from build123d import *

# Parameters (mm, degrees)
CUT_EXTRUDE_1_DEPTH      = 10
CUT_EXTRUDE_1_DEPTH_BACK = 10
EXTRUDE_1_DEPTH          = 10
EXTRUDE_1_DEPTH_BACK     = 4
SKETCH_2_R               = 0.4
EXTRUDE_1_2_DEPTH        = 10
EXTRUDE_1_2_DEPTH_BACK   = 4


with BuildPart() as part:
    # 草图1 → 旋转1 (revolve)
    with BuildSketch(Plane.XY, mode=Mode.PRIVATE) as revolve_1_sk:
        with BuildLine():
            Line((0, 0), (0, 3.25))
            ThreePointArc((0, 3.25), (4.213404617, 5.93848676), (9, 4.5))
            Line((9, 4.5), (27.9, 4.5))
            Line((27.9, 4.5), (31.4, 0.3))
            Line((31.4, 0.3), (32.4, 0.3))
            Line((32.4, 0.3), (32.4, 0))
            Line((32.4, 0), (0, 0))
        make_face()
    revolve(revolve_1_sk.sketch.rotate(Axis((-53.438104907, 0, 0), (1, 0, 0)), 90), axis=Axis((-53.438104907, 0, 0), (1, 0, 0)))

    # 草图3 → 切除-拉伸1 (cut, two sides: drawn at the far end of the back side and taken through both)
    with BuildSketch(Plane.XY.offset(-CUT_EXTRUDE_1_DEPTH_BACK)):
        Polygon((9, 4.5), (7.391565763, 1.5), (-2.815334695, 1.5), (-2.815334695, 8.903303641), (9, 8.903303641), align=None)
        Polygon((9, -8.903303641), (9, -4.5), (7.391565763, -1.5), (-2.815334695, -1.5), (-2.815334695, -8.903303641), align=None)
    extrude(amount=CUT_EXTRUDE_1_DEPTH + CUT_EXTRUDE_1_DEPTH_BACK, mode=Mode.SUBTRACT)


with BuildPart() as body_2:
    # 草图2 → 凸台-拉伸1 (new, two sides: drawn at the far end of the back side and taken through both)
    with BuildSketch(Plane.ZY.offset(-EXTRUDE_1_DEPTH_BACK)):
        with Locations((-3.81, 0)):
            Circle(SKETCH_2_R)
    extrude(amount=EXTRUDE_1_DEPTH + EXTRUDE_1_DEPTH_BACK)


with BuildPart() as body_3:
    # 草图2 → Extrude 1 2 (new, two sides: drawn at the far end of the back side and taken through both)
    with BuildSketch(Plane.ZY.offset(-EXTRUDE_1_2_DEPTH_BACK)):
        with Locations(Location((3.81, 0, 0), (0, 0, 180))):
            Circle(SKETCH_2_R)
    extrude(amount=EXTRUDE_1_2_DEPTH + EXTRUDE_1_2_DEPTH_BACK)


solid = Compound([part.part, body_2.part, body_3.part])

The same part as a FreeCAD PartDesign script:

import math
import FreeCAD as App
import Part
import Sketcher
from FreeCAD import Vector
Q = App.Units.Quantity

doc = App.newDocument("Part")
body = doc.addObject("PartDesign::Body", "Body")

# Sketch on XY plane
sketch1 = body.newObject("Sketcher::SketchObject", "Sketch")
sketch1.AttachmentSupport = (doc.getObject("XY_Plane"), [""])
sketch1.MapMode = "FlatFace"
sketch1.addGeometry(Part.LineSegment(Vector(0, 3.25, 0), Vector(0, 0, 0)), False)
sketch1.addGeometry(Part.LineSegment(Vector(0, 0, 0), Vector(32.4, 0, 0)), False)
sketch1.addGeometry(Part.LineSegment(Vector(32.4, 0, 0), Vector(32.4, 0.3, 0)), False)
sketch1.addGeometry(Part.LineSegment(Vector(32.4, 0.3, 0), Vector(31.4, 0.3, 0)), False)
sketch1.addGeometry(Part.LineSegment(Vector(31.4, 0.3, 0), Vector(27.9, 4.5, 0)), False)
sketch1.addGeometry(Part.LineSegment(Vector(27.9, 4.5, 0), Vector(9, 4.5, 0)), False)
sketch1.addGeometry(Part.ArcOfCircle(Part.Circle(Vector(5.04, 0, 0), Vector(0, 0, 1), 6), math.radians(49), math.radians(147)), False)
sketch1.addConstraint(Sketcher.Constraint("Coincident", 0, 2, 1, 1))
sketch1.addConstraint(Sketcher.Constraint("Coincident", 1, 2, 2, 1))
sketch1.addConstraint(Sketcher.Constraint("Coincident", 2, 2, 3, 1))
sketch1.addConstraint(Sketcher.Constraint("Coincident", 3, 2, 4, 1))
sketch1.addConstraint(Sketcher.Constraint("Coincident", 4, 2, 5, 1))
sketch1.addConstraint(Sketcher.Constraint("Coincident", 5, 2, 6, 1))
sketch1.addConstraint(Sketcher.Constraint("Coincident", 6, 2, 0, 1))
sketch1.addConstraint(Sketcher.Constraint("Vertical", 0))
sketch1.addConstraint(Sketcher.Constraint("Horizontal", 1))
sketch1.addConstraint(Sketcher.Constraint("Vertical", 2))
sketch1.addConstraint(Sketcher.Constraint("Horizontal", 3))
sketch1.addConstraint(Sketcher.Constraint("Horizontal", 5))
sketch1.addConstraint(Sketcher.Constraint("Coincident", 0, 2, -1, 1))
sketch1.addConstraint(Sketcher.Constraint("PointOnObject", 6, 3, -1))
sketch1.addConstraint(Sketcher.Constraint("DistanceX", 3, 2, 3, 1, Q("1 mm")))
sketch1.addConstraint(Sketcher.Constraint("DistanceX", 1, 1, 1, 2, Q("32.4 mm")))
sketch1.addConstraint(Sketcher.Constraint("DistanceX", 5, 2, 5, 1, Q("18.9 mm")))
sketch1.addConstraint(Sketcher.Constraint("DistanceY", 2, 1, 2, 2, Q("0.3 mm")))
sketch1.addConstraint(Sketcher.Constraint("DistanceX", -1, 1, 5, 2, Q("9 mm")))
sketch1.addConstraint(Sketcher.Constraint("DistanceY", 0, 2, 0, 1, Q("3.25 mm")))
sketch1.addConstraint(Sketcher.Constraint("DistanceY", -1, 1, 4, 2, Q("4.5 mm")))
revolution = body.newObject("PartDesign::Revolution", "Revolution")
revolution.Profile = sketch1
revolution.ReferenceAxis = (sketch1, ["H_Axis"])
revolution.Angle = 360

# Sketch on XY plane
sketch2 = body.newObject("Sketcher::SketchObject", "Sketch001")
sketch2.AttachmentSupport = (doc.getObject("XY_Plane"), [""])
sketch2.MapMode = "FlatFace"
sketch2.addGeometry(Part.LineSegment(Vector(7.4, 1.5, 0), Vector(9, 4.5, 0)), False)
sketch2.addGeometry(Part.LineSegment(Vector(9, 4.5, 0), Vector(9, 8.9, 0)), False)
sketch2.addGeometry(Part.LineSegment(Vector(9, 8.9, 0), Vector(-2.8, 8.9, 0)), False)
sketch2.addGeometry(Part.LineSegment(Vector(-2.8, 8.9, 0), Vector(-2.8, 1.5, 0)), False)
sketch2.addGeometry(Part.LineSegment(Vector(-2.8, 1.5, 0), Vector(7.4, 1.5, 0)), False)
sketch2.addGeometry(Part.LineSegment(Vector(9, -8.9, 0), Vector(9, -4.5, 0)), False)
sketch2.addGeometry(Part.LineSegment(Vector(9, -4.5, 0), Vector(7.4, -1.5, 0)), False)
sketch2.addGeometry(Part.LineSegment(Vector(7.4, -1.5, 0), Vector(-2.8, -1.5, 0)), False)
sketch2.addGeometry(Part.LineSegment(Vector(-2.8, -1.5, 0), Vector(-2.8, -8.9, 0)), False)
sketch2.addGeometry(Part.LineSegment(Vector(-2.8, -8.9, 0), Vector(9, -8.9, 0)), False)
sketch2.addConstraint(Sketcher.Constraint("Coincident", 0, 2, 1, 1))
sketch2.addConstraint(Sketcher.Constraint("Coincident", 1, 2, 2, 1))
sketch2.addConstraint(Sketcher.Constraint("Coincident", 2, 2, 3, 1))
sketch2.addConstraint(Sketcher.Constraint("Coincident", 3, 2, 4, 1))
sketch2.addConstraint(Sketcher.Constraint("Coincident", 4, 2, 0, 1))
sketch2.addConstraint(Sketcher.Constraint("Coincident", 5, 2, 6, 1))
sketch2.addConstraint(Sketcher.Constraint("Coincident", 6, 2, 7, 1))
sketch2.addConstraint(Sketcher.Constraint("Coincident", 7, 2, 8, 1))
sketch2.addConstraint(Sketcher.Constraint("Coincident", 8, 2, 9, 1))
sketch2.addConstraint(Sketcher.Constraint("Coincident", 9, 2, 5, 1))
sketch2.addConstraint(Sketcher.Constraint("Vertical", 1))
sketch2.addConstraint(Sketcher.Constraint("Horizontal", 2))
sketch2.addConstraint(Sketcher.Constraint("Vertical", 3))
sketch2.addConstraint(Sketcher.Constraint("Horizontal", 4))
sketch2.addConstraint(Sketcher.Constraint("Vertical", 5))
sketch2.addConstraint(Sketcher.Constraint("Horizontal", 7))
sketch2.addConstraint(Sketcher.Constraint("Vertical", 8))
sketch2.addConstraint(Sketcher.Constraint("Horizontal", 9))
sketch2.addConstraint(Sketcher.Constraint("Symmetric", 0, 2, 5, 2, -1))
sketch2.addConstraint(Sketcher.Constraint("Symmetric", 4, 2, 6, 2, -1))
sketch2.addConstraint(Sketcher.Constraint("Symmetric", 2, 2, 8, 2, -1))
sketch2.addConstraint(Sketcher.Constraint("DistanceX", -1, 1, 0, 2, Q("9 mm")))
sketch2.addConstraint(Sketcher.Constraint("DistanceY", 3, 2, 0, 2, Q("3 mm")))
sketch2.addConstraint(Sketcher.Constraint("DistanceY", 5, 2, 4, 2, Q("6 mm")))
sketch2.addConstraint(Sketcher.Constraint("DistanceX", 4, 1, 4, 2, Q("10.2069 mm")))
sketch2.addConstraint(Sketcher.Constraint("DistanceX", 2, 2, 2, 1, Q("11.815335 mm")))
sketch2.addConstraint(Sketcher.Constraint("DistanceY", 1, 1, 1, 2, Q("4.403304 mm")))
pocket1 = body.newObject("PartDesign::Pocket", "Pocket")
pocket1.Profile = sketch2
pocket1.Type = "ThroughAll"
pocket1.Midplane = True
body2 = doc.addObject("PartDesign::Body", "Body001")

# Sketch on YZ plane
sketch3 = body2.newObject("Sketcher::SketchObject", "Sketch002")
sketch3.AttachmentSupport = (doc.getObject("YZ_Plane001"), [""])
sketch3.MapMode = "FlatFace"
sketch3.addGeometry(Part.Circle(Vector(0, -3.81, 0), Vector(0, 0, 1), 0.4), False)
sketch3.addConstraint(Sketcher.Constraint("PointOnObject", 0, 3, -2))
sketch3.addConstraint(Sketcher.Constraint("Diameter", 0, Q("0.8 mm")))
sketch3.addConstraint(Sketcher.Constraint("DistanceY", 0, 3, -1, 1, Q("3.81 mm")))
pad1 = body2.newObject("PartDesign::Pad", "Pad")
pad1.Profile = sketch3
pad1.Type = "TwoLengths"
pad1.Length = 10
pad1.Length2 = 4
pad1.Reversed = True
body3 = doc.addObject("PartDesign::Body", "Body002")

# Sketch on YZ plane
sketch4 = body3.newObject("Sketcher::SketchObject", "Sketch003")
sketch4.AttachmentSupport = (doc.getObject("YZ_Plane002"), [""])
sketch4.MapMode = "FlatFace"
sketch4.addGeometry(Part.Circle(Vector(0, 3.81, 0), Vector(0, 0, 1), 0.4), False)
sketch4.addConstraint(Sketcher.Constraint("PointOnObject", 0, 3, -2))
sketch4.addConstraint(Sketcher.Constraint("Diameter", 0, Q("0.8 mm")))
sketch4.addConstraint(Sketcher.Constraint("DistanceY", -1, 1, 0, 3, Q("3.81 mm")))
pad2 = body3.newObject("PartDesign::Pad", "Pad001")
pad2.Profile = sketch4
pad2.Type = "TwoLengths"
pad2.Length = 10
pad2.Length2 = 4
pad2.Reversed = True

doc.recompute()
